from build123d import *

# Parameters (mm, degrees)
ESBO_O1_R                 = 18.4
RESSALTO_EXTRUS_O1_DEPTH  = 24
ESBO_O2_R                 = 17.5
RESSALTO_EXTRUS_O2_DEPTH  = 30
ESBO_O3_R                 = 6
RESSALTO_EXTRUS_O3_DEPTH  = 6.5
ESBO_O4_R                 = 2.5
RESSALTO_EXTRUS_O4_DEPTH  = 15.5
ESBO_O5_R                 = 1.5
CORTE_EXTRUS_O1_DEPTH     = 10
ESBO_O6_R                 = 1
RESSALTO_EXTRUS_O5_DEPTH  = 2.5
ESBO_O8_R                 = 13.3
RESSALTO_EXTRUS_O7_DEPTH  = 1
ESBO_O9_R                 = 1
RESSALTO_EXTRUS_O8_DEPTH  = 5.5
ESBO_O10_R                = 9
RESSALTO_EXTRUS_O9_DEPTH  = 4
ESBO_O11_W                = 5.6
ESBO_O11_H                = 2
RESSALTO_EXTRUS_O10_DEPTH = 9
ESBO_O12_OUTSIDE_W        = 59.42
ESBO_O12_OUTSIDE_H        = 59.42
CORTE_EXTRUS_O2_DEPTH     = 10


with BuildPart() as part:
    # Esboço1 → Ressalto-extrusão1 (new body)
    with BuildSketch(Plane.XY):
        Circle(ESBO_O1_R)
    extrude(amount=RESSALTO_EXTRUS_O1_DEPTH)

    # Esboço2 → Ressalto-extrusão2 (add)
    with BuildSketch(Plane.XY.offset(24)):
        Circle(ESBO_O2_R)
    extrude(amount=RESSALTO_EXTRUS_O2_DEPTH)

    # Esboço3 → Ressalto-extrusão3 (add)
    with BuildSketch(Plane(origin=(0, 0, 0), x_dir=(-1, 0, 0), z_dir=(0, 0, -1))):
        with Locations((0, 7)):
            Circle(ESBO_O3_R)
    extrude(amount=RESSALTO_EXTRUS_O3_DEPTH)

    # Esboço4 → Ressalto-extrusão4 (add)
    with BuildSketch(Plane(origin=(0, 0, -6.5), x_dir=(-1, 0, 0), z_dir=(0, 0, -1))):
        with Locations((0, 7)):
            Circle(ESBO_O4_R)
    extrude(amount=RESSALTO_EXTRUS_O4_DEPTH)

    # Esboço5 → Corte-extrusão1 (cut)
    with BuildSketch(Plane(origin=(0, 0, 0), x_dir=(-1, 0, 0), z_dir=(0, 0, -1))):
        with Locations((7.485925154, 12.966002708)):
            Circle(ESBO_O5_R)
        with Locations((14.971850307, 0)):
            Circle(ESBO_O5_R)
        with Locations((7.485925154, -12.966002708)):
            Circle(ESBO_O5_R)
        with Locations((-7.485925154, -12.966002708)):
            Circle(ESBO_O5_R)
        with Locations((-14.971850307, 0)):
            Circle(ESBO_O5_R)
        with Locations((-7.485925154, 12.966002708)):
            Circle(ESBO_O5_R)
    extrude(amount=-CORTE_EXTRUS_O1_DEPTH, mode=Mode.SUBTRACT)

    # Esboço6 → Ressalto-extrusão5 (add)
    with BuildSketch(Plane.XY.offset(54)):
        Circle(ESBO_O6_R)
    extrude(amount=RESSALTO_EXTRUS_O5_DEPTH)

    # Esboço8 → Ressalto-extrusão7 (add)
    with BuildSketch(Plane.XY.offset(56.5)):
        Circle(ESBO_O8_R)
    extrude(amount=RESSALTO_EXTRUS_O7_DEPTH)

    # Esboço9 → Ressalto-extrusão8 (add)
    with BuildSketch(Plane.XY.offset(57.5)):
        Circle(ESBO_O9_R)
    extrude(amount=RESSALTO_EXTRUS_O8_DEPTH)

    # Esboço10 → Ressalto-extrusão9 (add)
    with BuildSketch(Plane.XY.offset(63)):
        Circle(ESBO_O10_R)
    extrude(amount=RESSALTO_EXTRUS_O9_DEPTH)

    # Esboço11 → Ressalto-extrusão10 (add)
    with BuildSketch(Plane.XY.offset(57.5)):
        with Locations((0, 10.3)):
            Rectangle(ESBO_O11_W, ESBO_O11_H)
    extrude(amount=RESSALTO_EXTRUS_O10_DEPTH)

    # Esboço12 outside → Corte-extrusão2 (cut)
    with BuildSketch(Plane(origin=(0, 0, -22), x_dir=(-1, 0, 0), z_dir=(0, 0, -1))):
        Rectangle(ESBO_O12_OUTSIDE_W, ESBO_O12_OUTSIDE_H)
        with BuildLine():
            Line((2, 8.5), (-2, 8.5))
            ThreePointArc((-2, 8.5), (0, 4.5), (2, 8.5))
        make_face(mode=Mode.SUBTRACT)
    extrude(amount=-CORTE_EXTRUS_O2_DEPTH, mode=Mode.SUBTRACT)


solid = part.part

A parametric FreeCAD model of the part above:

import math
import FreeCAD as App
import Part
import Sketcher
Q = App.Units.Quantity

doc = App.newDocument("Part")
body = doc.addObject("PartDesign::Body", "Body")

sketch1 = doc.addObject("Sketcher::SketchObject", "Sketch")
body.addObject(sketch1)
sketch1.AttachmentSupport = (doc.XY_Plane, [""])
sketch1.MapMode = "FlatFace"
sketch1.addGeometry(Part.Circle(App.Vector(0, 0, 0), App.Vector(0, 0, 1), 18), False)
sketch1.addConstraint([
    Sketcher.Constraint("Coincident", 0, 3, -1, 1),
    Sketcher.Constraint("Diameter", 0, Q("36.8 mm")),
])
pad1 = doc.addObject("PartDesign::Pad", "Pad")
body.addObject(pad1)
pad1.Profile = sketch1
pad1.Length = 24

sketch2 = doc.addObject("Sketcher::SketchObject", "Sketch001")
body.addObject(sketch2)
sketch2.AttachmentSupport = (doc.XY_Plane, [""])
sketch2.MapMode = "FlatFace"
sketch2.AttachmentOffset = App.Placement(App.Vector(0, 0, 24), App.Rotation())
sketch2.addGeometry(Part.Circle(App.Vector(0, 0, 0), App.Vector(0, 0, 1), 18), False)
sketch2.addConstraint([
    Sketcher.Constraint("Coincident", 0, 3, -1, 1),
    Sketcher.Constraint("Diameter", 0, Q("35 mm")),
])
pad2 = doc.addObject("PartDesign::Pad", "Pad001")
body.addObject(pad2)
pad2.Profile = sketch2
pad2.Length = 30

sketch3 = doc.addObject("Sketcher::SketchObject", "Sketch002")
body.addObject(sketch3)
sketch3.AttachmentSupport = (doc.XY_Plane, [""])
sketch3.MapMode = "FlatFace"
sketch3.addGeometry(Part.Circle(App.Vector(0, 7, 0), App.Vector(0, 0, 1), 6), False)
sketch3.addConstraint([
    Sketcher.Constraint("PointOnObject", 0, 3, -2),
    Sketcher.Constraint("Diameter", 0, Q("12 mm")),
    Sketcher.Constraint("DistanceY", -1, 1, 0, 3, Q("7 mm")),
])
pad3 = doc.addObject("PartDesign::Pad", "Pad002")
body.addObject(pad3)
pad3.Profile = sketch3
pad3.Length = 6.5
pad3.Reversed = True

sketch4 = doc.addObject("Sketcher::SketchObject", "Sketch003")
body.addObject(sketch4)
sketch4.AttachmentSupport = (doc.XY_Plane, [""])
sketch4.MapMode = "FlatFace"
sketch4.AttachmentOffset = App.Placement(App.Vector(0, 0, -6.5), App.Rotation())
sketch4.addGeometry(Part.Circle(App.Vector(0, 7, 0), App.Vector(0, 0, 1), 2.5), False)
sketch4.addConstraint([
    Sketcher.Constraint("PointOnObject", 0, 3, -2),
    Sketcher.Constraint("Diameter", 0, Q("5 mm")),
    Sketcher.Constraint("DistanceY", -1, 1, 0, 3, Q("7 mm")),
])
pad4 = doc.addObject("PartDesign::Pad", "Pad003")
body.addObject(pad4)
pad4.Profile = sketch4
pad4.Length = 15.5
pad4.Reversed = True

sketch5 = doc.addObject("Sketcher::SketchObject", "Sketch004")
body.addObject(sketch5)
sketch5.AttachmentSupport = (doc.XY_Plane, [""])
sketch5.MapMode = "FlatFace"
sketch5.addGeometry([
    Part.Circle(App.Vector(-7.5, 13, 0), App.Vector(0, 0, 1), 1.5),
    Part.Circle(App.Vector(-15, 0, 0), App.Vector(0, 0, 1), 1.5),
    Part.Circle(App.Vector(-7.5, -13, 0), App.Vector(0, 0, 1), 1.5),
    Part.Circle(App.Vector(7.5, -13, 0), App.Vector(0, 0, 1), 1.5),
    Part.Circle(App.Vector(15, 0, 0), App.Vector(0, 0, 1), 1.5),
    Part.Circle(App.Vector(7.5, 13, 0), App.Vector(0, 0, 1), 1.5),
], False)
sketch5.addConstraint([
    Sketcher.Constraint("Equal", 0, 1),
    Sketcher.Constraint("Equal", 1, 2),
    Sketcher.Constraint("Equal", 2, 3),
    Sketcher.Constraint("Equal", 3, 4),
    Sketcher.Constraint("Equal", 4, 5),
    Sketcher.Constraint("Symmetric", 0, 3, 3, 3, -1, 1),
    Sketcher.Constraint("Symmetric", 1, 3, 4, 3, -1, 1),
    Sketcher.Constraint("Symmetric", 2, 3, 5, 3, -1, 1),
    Sketcher.Constraint("Symmetric", 2, 3, 3, 3, -2),
    Sketcher.Constraint("PointOnObject", 1, 3, -1),
    Sketcher.Constraint("Diameter", 0, Q("3 mm")),
    Sketcher.Constraint("DistanceX", 1, 3, 4, 3, Q("29.943701 mm")),
    Sketcher.Constraint("DistanceX", 2, 3, 3, 3, Q("14.97185 mm")),
    Sketcher.Constraint("DistanceY", -1, 1, 0, 3, Q("12.966003 mm")),
])
pocket1 = doc.addObject("PartDesign::Pocket", "Pocket")
body.addObject(pocket1)
pocket1.Profile = sketch5
pocket1.Length = 10
pocket1.Reversed = True

sketch6 = doc.addObject("Sketcher::SketchObject", "Sketch005")
body.addObject(sketch6)
sketch6.AttachmentSupport = (doc.XY_Plane, [""])
sketch6.MapMode = "FlatFace"
sketch6.AttachmentOffset = App.Placement(App.Vector(0, 0, 54), App.Rotation())
sketch6.addGeometry(Part.Circle(App.Vector(0, 0, 0), App.Vector(0, 0, 1), 1), False)
sketch6.addConstraint([
    Sketcher.Constraint("Coincident", 0, 3, -1, 1),
    Sketcher.Constraint("Diameter", 0, Q("2 mm")),
])
pad5 = doc.addObject("PartDesign::Pad", "Pad004")
body.addObject(pad5)
pad5.Profile = sketch6
pad5.Length = 2.5

sketch7 = doc.addObject("Sketcher::SketchObject", "Sketch006")
body.addObject(sketch7)
sketch7.AttachmentSupport = (doc.XY_Plane, [""])
sketch7.MapMode = "FlatFace"
sketch7.AttachmentOffset = App.Placement(App.Vector(0, 0, 56.5), App.Rotation())
sketch7.addGeometry(Part.Circle(App.Vector(0, 0, 0), App.Vector(0, 0, 1), 13), False)
sketch7.addConstraint([
    Sketcher.Constraint("Coincident", 0, 3, -1, 1),
    Sketcher.Constraint("Diameter", 0, Q("26.6 mm")),
])
pad6 = doc.addObject("PartDesign::Pad", "Pad005")
body.addObject(pad6)
pad6.Profile = sketch7
pad6.Length = 1

sketch8 = doc.addObject("Sketcher::SketchObject", "Sketch007")
body.addObject(sketch8)
sketch8.AttachmentSupport = (doc.XY_Plane, [""])
sketch8.MapMode = "FlatFace"
sketch8.AttachmentOffset = App.Placement(App.Vector(0, 0, 57.5), App.Rotation())
sketch8.addGeometry(Part.Circle(App.Vector(0, 0, 0), App.Vector(0, 0, 1), 1), False)
sketch8.addConstraint([
    Sketcher.Constraint("Coincident", 0, 3, -1, 1),
    Sketcher.Constraint("Diameter", 0, Q("2 mm")),
])
pad7 = doc.addObject("PartDesign::Pad", "Pad006")
body.addObject(pad7)
pad7.Profile = sketch8
pad7.Length = 5.5

sketch9 = doc.addObject("Sketcher::SketchObject", "Sketch008")
body.addObject(sketch9)
sketch9.AttachmentSupport = (doc.XY_Plane, [""])
sketch9.MapMode = "FlatFace"
sketch9.AttachmentOffset = App.Placement(App.Vector(0, 0, 63), App.Rotation())
sketch9.addGeometry(Part.Circle(App.Vector(0, 0, 0), App.Vector(0, 0, 1), 9), False)
sketch9.addConstraint([
    Sketcher.Constraint("Coincident", 0, 3, -1, 1),
    Sketcher.Constraint("Diameter", 0, Q("18 mm")),
])
pad8 = doc.addObject("PartDesign::Pad", "Pad007")
body.addObject(pad8)
pad8.Profile = sketch9
pad8.Length = 4

sketch10 = doc.addObject("Sketcher::SketchObject", "Sketch009")
body.addObject(sketch10)
sketch10.AttachmentSupport = (doc.XY_Plane, [""])
sketch10.MapMode = "FlatFace"
sketch10.AttachmentOffset = App.Placement(App.Vector(0, 0, 57.5), App.Rotation())
sketch10.addGeometry([
    Part.LineSegment(App.Vector(-2.8, 11.3, 0), App.Vector(-2.8, 9.3, 0)),
    Part.LineSegment(App.Vector(-2.8, 9.3, 0), App.Vector(2.8, 9.3, 0)),
    Part.LineSegment(App.Vector(2.8, 9.3, 0), App.Vector(2.8, 11.3, 0)),
    Part.LineSegment(App.Vector(2.8, 11.3, 0), App.Vector(-2.8, 11.3, 0)),
], False)
sketch10.addConstraint([
    Sketcher.Constraint("Coincident", 0, 2, 1, 1),
    Sketcher.Constraint("Coincident", 1, 2, 2, 1),
    Sketcher.Constraint("Coincident", 2, 2, 3, 1),
    Sketcher.Constraint("Coincident", 3, 2, 0, 1),
    Sketcher.Constraint("Vertical", 0),
    Sketcher.Constraint("Horizontal", 1),
    Sketcher.Constraint("Vertical", 2),
    Sketcher.Constraint("Horizontal", 3),
    Sketcher.Constraint("DistanceY", 0, 2, 0, 1, Q("2 mm")),
    Sketcher.Constraint("DistanceX", 1, 1, 1, 2, Q("5.6 mm")),
    Sketcher.Constraint("DistanceX", 0, 2, -1, 1, Q("2.8 mm")),
    Sketcher.Constraint("DistanceY", -1, 1, 0, 2, Q("9.3 mm")),
])
pad9 = doc.addObject("PartDesign::Pad", "Pad008")
body.addObject(pad9)
pad9.Profile = sketch10
pad9.Length = 9

sketch11 = doc.addObject("Sketcher::SketchObject", "Sketch010")
body.addObject(sketch11)
sketch11.AttachmentSupport = (doc.XY_Plane, [""])
sketch11.MapMode = "FlatFace"
sketch11.AttachmentOffset = App.Placement(App.Vector(0, 0, -22), App.Rotation())
sketch11.addGeometry([
    Part.LineSegment(App.Vector(29.7, 29.7, 0), App.Vector(29.7, -29.7, 0)),
    Part.LineSegment(App.Vector(29.7, -29.7, 0), App.Vector(-29.7, -29.7, 0)),
    Part.LineSegment(App.Vector(-29.7, -29.7, 0), App.Vector(-29.7, 29.7, 0)),
    Part.LineSegment(App.Vector(-29.7, 29.7, 0), App.Vector(29.7, 29.7, 0)),
    Part.LineSegment(App.Vector(2, 8.5, 0), App.Vector(-2, 8.5, 0)),
    Part.ArcOfCircle(Part.Circle(App.Vector(0, 7, 0), App.Vector(0, 0, 1), 2.5), math.radians(143), math.radians(397)),
], False)
sketch11.addConstraint([
    Sketcher.Constraint("Coincident", 0, 2, 1, 1),
    Sketcher.Constraint("Coincident", 1, 2, 2, 1),
    Sketcher.Constraint("Coincident", 2, 2, 3, 1),
    Sketcher.Constraint("Coincident", 3, 2, 0, 1),
    Sketcher.Constraint("Coincident", 4, 1, 5, 2),
    Sketcher.Constraint("Coincident", 5, 1, 4, 2),
    Sketcher.Constraint("Vertical", 0),
    Sketcher.Constraint("Horizontal", 1),
    Sketcher.Constraint("Vertical", 2),
    Sketcher.Constraint("Horizontal", 3),
    Sketcher.Constraint("Horizontal", 4),
    Sketcher.Constraint("Symmetric", 0, 2, 2, 2, -1, 1),
    Sketcher.Constraint("PointOnObject", 5, 3, -2),
    Sketcher.Constraint("Equal", 3, 0),
    Sketcher.Constraint("Radius", 5, Q("2.5 mm")),
    Sketcher.Constraint("DistanceX", 4, 2, 4, 1, Q("4 mm")),
    Sketcher.Constraint("DistanceY", -1, 1, 5, 3, Q("7 mm")),
    Sketcher.Constraint("DistanceX", 1, 2, 1, 1, Q("59.42 mm")),
])
pocket2 = doc.addObject("PartDesign::Pocket", "Pocket001")
body.addObject(pocket2)
pocket2.Profile = sketch11
pocket2.Length = 10
pocket2.Reversed = True

doc.recompute()
